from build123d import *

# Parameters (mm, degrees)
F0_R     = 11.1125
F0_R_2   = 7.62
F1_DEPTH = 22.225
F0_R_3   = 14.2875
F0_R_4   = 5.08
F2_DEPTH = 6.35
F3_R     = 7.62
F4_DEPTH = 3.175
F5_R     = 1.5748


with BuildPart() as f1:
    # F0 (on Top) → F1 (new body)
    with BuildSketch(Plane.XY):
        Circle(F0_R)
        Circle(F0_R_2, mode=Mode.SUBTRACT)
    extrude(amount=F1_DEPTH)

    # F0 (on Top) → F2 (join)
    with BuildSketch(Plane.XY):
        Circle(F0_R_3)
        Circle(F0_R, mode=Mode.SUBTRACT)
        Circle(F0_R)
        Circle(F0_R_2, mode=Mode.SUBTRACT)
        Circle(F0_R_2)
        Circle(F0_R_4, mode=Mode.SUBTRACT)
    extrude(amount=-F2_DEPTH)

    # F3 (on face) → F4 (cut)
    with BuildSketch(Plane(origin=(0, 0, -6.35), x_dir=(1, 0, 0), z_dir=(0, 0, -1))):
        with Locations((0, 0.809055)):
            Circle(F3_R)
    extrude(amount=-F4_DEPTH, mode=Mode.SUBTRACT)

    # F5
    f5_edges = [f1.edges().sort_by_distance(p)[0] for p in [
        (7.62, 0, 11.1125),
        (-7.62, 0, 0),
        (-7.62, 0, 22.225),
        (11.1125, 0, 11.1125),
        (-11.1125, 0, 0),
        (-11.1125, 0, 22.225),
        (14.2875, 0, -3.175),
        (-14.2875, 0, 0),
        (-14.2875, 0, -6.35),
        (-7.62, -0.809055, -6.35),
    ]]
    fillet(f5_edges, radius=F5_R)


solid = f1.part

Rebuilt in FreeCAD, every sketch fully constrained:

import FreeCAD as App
import Part
import Sketcher

V = App.Vector
Q = App.Units.Quantity


def edges_at(feature, points):
    """Names of the edges that pass closest to the given points."""
    edges = feature.Shape.Edges
    near = lambda p: min(range(len(edges)), key=lambda i: edges[i].distToShape(Part.Vertex(*p))[0])
    return sorted({f"Edge{near(p) + 1}" for p in points})

doc = App.newDocument("Part")
body = doc.addObject("PartDesign::Body", "Body")

# Sketch on XY plane
sketch1 = body.newObject("Sketcher::SketchObject", "Sketch")
sketch1.AttachmentSupport = (doc.getObject("XY_Plane"), [""])
sketch1.MapMode = "FlatFace"
sketch1.addGeometry(Part.Circle(V(0, 0, 0), V(0, 0, 1), 11.1125), False)
sketch1.addGeometry(Part.Circle(V(0, 0, 0), V(0, 0, 1), 7.62), False)
sketch1.addConstraint(Sketcher.Constraint("Coincident", 0, 3, -1, 1))
sketch1.addConstraint(Sketcher.Constraint("Coincident", 1, 3, -1, 1))
sketch1.addConstraint(Sketcher.Constraint("Diameter", 1, Q("0.6 in")))
sketch1.addConstraint(Sketcher.Constraint("Diameter", 0, Q("0.875 in")))
pad1 = body.newObject("PartDesign::Pad", "Pad")
pad1.Profile = sketch1
pad1.Length = Q("0.875 in")

# Sketch on XY plane
sketch2 = body.newObject("Sketcher::SketchObject", "Sketch001")
sketch2.AttachmentSupport = (doc.getObject("XY_Plane"), [""])
sketch2.MapMode = "FlatFace"
sketch2.addGeometry(Part.Circle(V(0, 0, 0), V(0, 0, 1), 14.2875), False)
sketch2.addGeometry(Part.Circle(V(0, 0, 0), V(0, 0, 1), 5.08), False)
sketch2.addConstraint(Sketcher.Constraint("Coincident", 0, 3, -1, 1))
sketch2.addConstraint(Sketcher.Constraint("Coincident", 1, 3, -1, 1))
sketch2.addConstraint(Sketcher.Constraint("Diameter", 1, Q("0.4 in")))
sketch2.addConstraint(Sketcher.Constraint("Diameter", 0, Q("1.125 in")))
pad2 = body.newObject("PartDesign::Pad", "Pad001")
pad2.Profile = sketch2
pad2.Length = Q("0.25 in")
pad2.Reversed = True

# Sketch on XY plane
sketch3 = body.newObject("Sketcher::SketchObject", "Sketch002")
sketch3.AttachmentSupport = (doc.getObject("XY_Plane"), [""])
sketch3.MapMode = "FlatFace"
sketch3.AttachmentOffset = App.Placement(V(0, 0, -0.25 * 25.4), App.Rotation())
sketch3.addGeometry(Part.Circle(V(0, -0.809055, 0), V(0, 0, 1), 7.62), False)
sketch3.addConstraint(Sketcher.Constraint("PointOnObject", 0, 3, -2))
sketch3.addConstraint(Sketcher.Constraint("Diameter", 0, Q("0.6 in")))
sketch3.addConstraint(Sketcher.Constraint("DistanceY", 0, 3, -1, 1, 0.809055))
pocket1 = body.newObject("PartDesign::Pocket", "Pocket")
pocket1.Profile = sketch3
pocket1.Length = Q("0.125 in")
pocket1.Reversed = True
doc.recompute()

fillet = body.newObject("PartDesign::Fillet", "Fillet")
fillet.Base = (pocket1, edges_at(pocket1, [
    (7.62, 0, 11.113),
    (-7.62, 0, 0),
    (-7.62, 0, 22.225),
    (11.113, 0, 11.113),
    (-11.113, 0, 0),
    (-11.113, 0, 22.225),
    (14.287, 0, -3.175),
    (-14.287, 0, 0),
    (-14.287, 0, -6.35),
    (-7.62, -0.809, -6.35),
]))
fillet.Radius = Q("0.062 in")

doc.recompute()
